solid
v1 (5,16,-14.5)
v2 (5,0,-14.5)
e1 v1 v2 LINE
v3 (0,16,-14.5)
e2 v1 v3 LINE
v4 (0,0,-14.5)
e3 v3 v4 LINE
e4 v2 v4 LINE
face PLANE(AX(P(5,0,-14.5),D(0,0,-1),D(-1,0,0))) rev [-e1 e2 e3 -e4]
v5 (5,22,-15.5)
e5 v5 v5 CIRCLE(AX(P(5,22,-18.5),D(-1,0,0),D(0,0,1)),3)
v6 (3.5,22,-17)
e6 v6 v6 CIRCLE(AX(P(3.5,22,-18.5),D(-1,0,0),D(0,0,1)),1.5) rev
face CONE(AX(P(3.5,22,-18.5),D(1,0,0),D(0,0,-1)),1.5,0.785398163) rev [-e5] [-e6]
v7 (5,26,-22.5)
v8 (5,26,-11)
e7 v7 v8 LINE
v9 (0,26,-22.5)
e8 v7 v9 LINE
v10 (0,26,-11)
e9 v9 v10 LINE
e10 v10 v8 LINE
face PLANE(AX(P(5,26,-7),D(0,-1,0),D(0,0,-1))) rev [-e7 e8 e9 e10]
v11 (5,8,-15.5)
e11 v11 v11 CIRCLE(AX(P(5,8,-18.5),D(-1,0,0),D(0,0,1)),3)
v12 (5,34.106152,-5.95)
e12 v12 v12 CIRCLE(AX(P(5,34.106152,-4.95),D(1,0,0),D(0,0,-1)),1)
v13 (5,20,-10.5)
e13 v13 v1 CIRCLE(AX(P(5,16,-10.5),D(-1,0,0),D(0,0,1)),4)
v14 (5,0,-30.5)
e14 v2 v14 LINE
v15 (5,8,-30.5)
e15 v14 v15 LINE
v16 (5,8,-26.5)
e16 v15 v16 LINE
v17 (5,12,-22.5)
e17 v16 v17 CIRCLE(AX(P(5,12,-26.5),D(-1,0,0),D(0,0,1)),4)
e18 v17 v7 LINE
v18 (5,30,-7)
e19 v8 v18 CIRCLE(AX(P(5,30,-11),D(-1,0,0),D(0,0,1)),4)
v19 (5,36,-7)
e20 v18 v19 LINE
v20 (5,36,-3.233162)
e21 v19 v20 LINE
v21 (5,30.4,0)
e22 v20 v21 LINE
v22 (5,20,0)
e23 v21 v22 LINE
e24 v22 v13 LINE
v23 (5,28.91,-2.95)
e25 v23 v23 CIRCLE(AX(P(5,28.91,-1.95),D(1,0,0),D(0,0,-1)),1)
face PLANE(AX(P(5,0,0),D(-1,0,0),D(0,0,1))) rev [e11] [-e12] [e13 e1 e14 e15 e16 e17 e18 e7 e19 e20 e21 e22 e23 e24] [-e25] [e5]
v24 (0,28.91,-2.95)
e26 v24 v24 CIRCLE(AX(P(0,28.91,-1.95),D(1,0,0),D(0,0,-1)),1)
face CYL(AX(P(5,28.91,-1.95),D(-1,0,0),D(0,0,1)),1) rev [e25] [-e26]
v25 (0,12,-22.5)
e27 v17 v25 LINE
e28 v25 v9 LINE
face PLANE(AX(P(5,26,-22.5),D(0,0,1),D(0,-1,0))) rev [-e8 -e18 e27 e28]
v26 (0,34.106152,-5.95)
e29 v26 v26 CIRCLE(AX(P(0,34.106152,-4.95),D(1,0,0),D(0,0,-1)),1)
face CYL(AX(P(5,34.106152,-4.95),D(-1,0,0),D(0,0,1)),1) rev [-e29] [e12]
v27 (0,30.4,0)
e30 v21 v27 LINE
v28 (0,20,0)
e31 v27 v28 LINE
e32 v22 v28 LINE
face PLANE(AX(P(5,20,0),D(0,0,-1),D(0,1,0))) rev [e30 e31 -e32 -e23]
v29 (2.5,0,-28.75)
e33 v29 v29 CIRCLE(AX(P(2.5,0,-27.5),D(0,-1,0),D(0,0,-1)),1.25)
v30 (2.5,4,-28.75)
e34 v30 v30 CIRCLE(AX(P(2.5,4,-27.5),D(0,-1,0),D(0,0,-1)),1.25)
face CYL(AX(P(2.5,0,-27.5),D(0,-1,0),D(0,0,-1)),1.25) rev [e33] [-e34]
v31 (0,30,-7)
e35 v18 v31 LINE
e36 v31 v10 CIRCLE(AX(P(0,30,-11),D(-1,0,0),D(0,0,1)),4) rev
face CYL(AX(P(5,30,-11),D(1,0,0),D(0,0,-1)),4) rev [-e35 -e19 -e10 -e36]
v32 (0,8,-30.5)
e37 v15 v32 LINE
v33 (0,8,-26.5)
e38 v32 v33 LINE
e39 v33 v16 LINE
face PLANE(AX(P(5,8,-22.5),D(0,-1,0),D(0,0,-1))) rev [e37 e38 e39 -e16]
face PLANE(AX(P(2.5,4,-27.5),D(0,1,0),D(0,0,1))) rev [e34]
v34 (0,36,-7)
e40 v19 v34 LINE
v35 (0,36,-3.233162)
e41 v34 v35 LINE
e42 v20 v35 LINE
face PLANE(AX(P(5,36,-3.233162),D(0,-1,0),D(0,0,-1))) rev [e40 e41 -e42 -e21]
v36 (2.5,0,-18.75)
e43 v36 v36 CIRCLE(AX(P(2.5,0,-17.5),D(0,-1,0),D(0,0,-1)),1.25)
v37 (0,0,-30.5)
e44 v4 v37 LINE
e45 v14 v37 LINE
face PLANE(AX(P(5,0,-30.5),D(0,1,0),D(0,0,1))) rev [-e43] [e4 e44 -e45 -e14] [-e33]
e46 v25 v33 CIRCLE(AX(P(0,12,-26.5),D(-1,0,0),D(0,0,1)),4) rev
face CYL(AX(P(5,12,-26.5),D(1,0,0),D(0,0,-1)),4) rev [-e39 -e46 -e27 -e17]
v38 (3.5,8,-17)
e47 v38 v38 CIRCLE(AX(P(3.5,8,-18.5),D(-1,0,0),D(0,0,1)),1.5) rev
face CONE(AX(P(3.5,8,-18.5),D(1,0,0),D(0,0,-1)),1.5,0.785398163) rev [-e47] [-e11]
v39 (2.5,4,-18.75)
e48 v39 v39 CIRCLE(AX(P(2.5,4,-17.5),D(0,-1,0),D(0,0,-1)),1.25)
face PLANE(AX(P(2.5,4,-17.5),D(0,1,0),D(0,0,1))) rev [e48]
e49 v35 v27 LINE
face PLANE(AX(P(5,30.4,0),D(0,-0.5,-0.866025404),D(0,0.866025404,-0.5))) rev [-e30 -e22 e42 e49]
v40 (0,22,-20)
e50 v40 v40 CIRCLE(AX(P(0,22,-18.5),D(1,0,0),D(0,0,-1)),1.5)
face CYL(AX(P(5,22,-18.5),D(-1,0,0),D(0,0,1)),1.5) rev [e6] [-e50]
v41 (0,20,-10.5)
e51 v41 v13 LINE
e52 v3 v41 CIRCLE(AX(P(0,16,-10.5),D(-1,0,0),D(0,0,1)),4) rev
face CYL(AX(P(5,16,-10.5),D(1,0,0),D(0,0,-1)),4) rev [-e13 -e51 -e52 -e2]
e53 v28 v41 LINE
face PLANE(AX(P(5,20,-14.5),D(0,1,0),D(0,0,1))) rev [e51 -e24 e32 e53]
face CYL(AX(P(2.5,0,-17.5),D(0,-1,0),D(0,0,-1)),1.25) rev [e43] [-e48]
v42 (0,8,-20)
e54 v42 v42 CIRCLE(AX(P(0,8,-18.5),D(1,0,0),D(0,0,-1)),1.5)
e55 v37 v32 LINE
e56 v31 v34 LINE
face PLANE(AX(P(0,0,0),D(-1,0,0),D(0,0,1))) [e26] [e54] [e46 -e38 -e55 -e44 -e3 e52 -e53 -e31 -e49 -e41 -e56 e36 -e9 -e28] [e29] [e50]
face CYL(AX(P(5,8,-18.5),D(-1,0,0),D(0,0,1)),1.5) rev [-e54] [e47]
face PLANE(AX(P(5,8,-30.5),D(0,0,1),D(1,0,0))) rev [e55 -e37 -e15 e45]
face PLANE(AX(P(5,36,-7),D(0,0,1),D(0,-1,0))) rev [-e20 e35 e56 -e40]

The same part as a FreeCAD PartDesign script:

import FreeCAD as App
import Part
import Sketcher

V = App.Vector
Q = App.Units.Quantity


def edges_at(feature, points):
    """Names of the edges that pass closest to the given points."""
    edges = feature.Shape.Edges
    near = lambda p: min(range(len(edges)), key=lambda i: edges[i].distToShape(Part.Vertex(*p))[0])
    return sorted({f"Edge{near(p) + 1}" for p in points})


def add_polygon(sketch, points):
    """Adds a closed chain of lines whose ends are joined by coincident constraints."""
    first, n = sketch.GeometryCount, len(points)
    for a, b in zip(points, points[1:] + points[:1]):
        sketch.addGeometry(Part.LineSegment(App.Vector(*a, 0), App.Vector(*b, 0)), False)
    for i in range(n):
        sketch.addConstraint(Sketcher.Constraint("Coincident", first + i, 2, first + (i + 1) % n, 1))

doc = App.newDocument("Part")
body = doc.addObject("PartDesign::Body", "Body")

# Sketch on YZ plane
sketch1 = doc.addObject("Sketcher::SketchObject", "Sketch")
body.addObject(sketch1)
sketch1.AttachmentSupport = (doc.YZ_Plane, [""])
sketch1.MapMode = "FlatFace"
add_polygon(sketch1, [(0, -14.5), (0, -30.5), (8, -30.5), (8, -22.5), (26, -22.5), (26, -7), (36, -7), (36, -3.233162), (30.4, 0), (20, 0), (20, -14.5)])  # lines 0-10
sketch1.addGeometry(Part.Circle(V(8, -18.5, 0), V(0, 0, 1), 1.5), False)  # 11
sketch1.addGeometry(Part.Circle(V(22, -18.5, 0), V(0, 0, 1), 1.5), False)  # 12
sketch1.addGeometry(Part.Circle(V(28.91, -1.95, 0), V(0, 0, 1), 1), False)  # 13
sketch1.addGeometry(Part.Circle(V(34.106152, -4.95, 0), V(0, 0, 1), 1), False)  # 14
sketch1.addConstraint([
    Sketcher.Constraint("Vertical", 0),
    Sketcher.Constraint("Horizontal", 1),
    Sketcher.Constraint("Vertical", 2),
    Sketcher.Constraint("Horizontal", 3),
    Sketcher.Constraint("Vertical", 4),
    Sketcher.Constraint("Horizontal", 5),
    Sketcher.Constraint("Vertical", 6),
    Sketcher.Constraint("Horizontal", 8),
    Sketcher.Constraint("Vertical", 9),
    Sketcher.Constraint("Horizontal", 10),
    Sketcher.Constraint("Equal", 11, 12),
    Sketcher.Constraint("Equal", 13, 14),
    Sketcher.Constraint("PointOnObject", 0, 2, -2),
    Sketcher.Constraint("PointOnObject", 7, 2, -1),
    Sketcher.Constraint("Horizontal", 11, 3, 12, 3),
    Sketcher.Constraint("Vertical", 11, 3, 1, 2),
    Sketcher.Constraint("Equal", 1, 2),
    Sketcher.Constraint("Diameter", 11, 3.0),
    Sketcher.Constraint("Diameter", 13, 2.0),
    Sketcher.Constraint("DistanceX", 1, 1, 1, 2, 8.0),
    Sketcher.Constraint("DistanceX", 3, 1, 3, 2, 18.0),
    Sketcher.Constraint("DistanceX", 5, 1, 5, 2, 10.0),
    Sketcher.Constraint("DistanceX", 10, 2, 10, 1, 20.0),
    Sketcher.Constraint("DistanceY", 0, 2, 0, 1, 16.0),
    Sketcher.Constraint("Angle", 7, Q("150 deg")),
    Sketcher.Constraint("DistanceX", 8, 2, 8, 1, 10.4),
    Sketcher.Constraint("DistanceY", 4, 1, 4, 2, 15.5),
    Sketcher.Constraint("DistanceY", 9, 2, 9, 1, 14.5),
    Sketcher.Constraint("DistanceX", -1, 1, 12, 3, 22.0),
    Sketcher.Constraint("DistanceY", 14, 3, 13, 3, 3.0),
    Sketcher.Constraint("DistanceY", 0, 2, 11, 3, 12.0),
    Sketcher.Constraint("DistanceX", -1, 1, 13, 3, 28.91),
    Sketcher.Constraint("DistanceY", 13, 3, -1, 1, 1.95),
    Sketcher.Constraint("DistanceX", -1, 1, 14, 3, 34.106152),
])
pad1 = doc.addObject("PartDesign::Pad", "Pad")
body.addObject(pad1)
pad1.Profile = sketch1
pad1.Length = 5
doc.recompute()

fillet = doc.addObject("PartDesign::Fillet", "Fillet")
body.addObject(fillet)
fillet.Base = (pad1, edges_at(pad1, [(2.5, 20, -14.5), (2.5, 26, -7), (2.5, 8, -22.5)]))
fillet.Radius = 4

# Sketch on XZ plane
sketch2 = doc.addObject("Sketcher::SketchObject", "Sketch001")
body.addObject(sketch2)
sketch2.AttachmentSupport = (doc.XZ_Plane, [""])
sketch2.MapMode = "FlatFace"
sketch2.addGeometry([
    Part.Circle(V(2.5, -17.5, 0), V(0, 0, 1), 1.25),
    Part.Circle(V(2.5, -27.5, 0), V(0, 0, 1), 1.25),
], False)
sketch2.addConstraint([
    Sketcher.Constraint("Equal", 0, 1),
    Sketcher.Constraint("Vertical", 0, 3, 1, 3),
    Sketcher.Constraint("Diameter", 0, 2.5),
    Sketcher.Constraint("DistanceY", 1, 3, 0, 3, 10.0),
    Sketcher.Constraint("DistanceX", -1, 1, 0, 3, 2.5),
    Sketcher.Constraint("DistanceY", 0, 3, -1, 1, 17.5),
])
doc.recompute()
hole = doc.addObject("PartDesign::Hole", "Hole")
body.addObject(hole)
hole.Profile = sketch2
hole.ThreadType = "None"
hole.Diameter = 2.5
hole.DepthType = "Dimension"
hole.Depth = 4
hole.DrillPoint = "Flat"
doc.recompute()

chamfer = doc.addObject("PartDesign::Chamfer", "Chamfer")
body.addObject(chamfer)
chamfer.Base = (hole, edges_at(hole, [(5, 8, -17), (5, 22, -17)]))
chamfer.Size = 1.5

doc.recompute()
